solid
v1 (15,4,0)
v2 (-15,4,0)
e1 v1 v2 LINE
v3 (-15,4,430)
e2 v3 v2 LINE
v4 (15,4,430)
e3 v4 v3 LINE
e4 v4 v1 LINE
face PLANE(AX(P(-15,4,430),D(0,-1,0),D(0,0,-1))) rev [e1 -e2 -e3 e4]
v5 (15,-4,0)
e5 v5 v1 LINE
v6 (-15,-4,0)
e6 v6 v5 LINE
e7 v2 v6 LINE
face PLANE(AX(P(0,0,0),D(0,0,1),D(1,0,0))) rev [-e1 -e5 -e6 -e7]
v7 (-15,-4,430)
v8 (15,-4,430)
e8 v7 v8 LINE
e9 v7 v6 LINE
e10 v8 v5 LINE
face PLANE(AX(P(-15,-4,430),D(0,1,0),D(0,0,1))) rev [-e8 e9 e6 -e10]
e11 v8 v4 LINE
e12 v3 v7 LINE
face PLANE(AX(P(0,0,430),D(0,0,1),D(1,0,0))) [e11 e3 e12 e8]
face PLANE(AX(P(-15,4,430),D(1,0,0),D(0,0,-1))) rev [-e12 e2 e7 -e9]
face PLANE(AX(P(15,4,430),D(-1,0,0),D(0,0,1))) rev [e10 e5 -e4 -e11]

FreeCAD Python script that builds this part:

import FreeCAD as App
import Part
import Sketcher

V = App.Vector

doc = App.newDocument("Part")
body = doc.addObject("PartDesign::Body", "Body")

# Sketch on XY plane
sketch1 = body.newObject("Sketcher::SketchObject", "Sketch")
sketch1.AttachmentSupport = (doc.getObject("XY_Plane"), [""])
sketch1.MapMode = "FlatFace"
sketch1.addGeometry([
    Part.LineSegment(V(-15, 4, 0), V(-15, -4, 0)),
    Part.LineSegment(V(-15, -4, 0), V(15, -4, 0)),
    Part.LineSegment(V(15, -4, 0), V(15, 4, 0)),
    Part.LineSegment(V(15, 4, 0), V(-15, 4, 0)),
], False)
sketch1.addConstraint([
    Sketcher.Constraint("Coincident", 0, 2, 1, 1),
    Sketcher.Constraint("Coincident", 1, 2, 2, 1),
    Sketcher.Constraint("Coincident", 2, 2, 3, 1),
    Sketcher.Constraint("Coincident", 3, 2, 0, 1),
    Sketcher.Constraint("Vertical", 0),
    Sketcher.Constraint("Horizontal", 1),
    Sketcher.Constraint("Vertical", 2),
    Sketcher.Constraint("Horizontal", 3),
    Sketcher.Constraint("Symmetric", 0, 2, 2, 2, -1, 1),
    Sketcher.Constraint("DistanceX", 1, 1, 1, 2, 30.0),
    Sketcher.Constraint("DistanceY", 0, 2, 0, 1, 8.0),
])
pad1 = body.newObject("PartDesign::Pad", "Pad")
pad1.Profile = sketch1
pad1.Length = 430

doc.recompute()
